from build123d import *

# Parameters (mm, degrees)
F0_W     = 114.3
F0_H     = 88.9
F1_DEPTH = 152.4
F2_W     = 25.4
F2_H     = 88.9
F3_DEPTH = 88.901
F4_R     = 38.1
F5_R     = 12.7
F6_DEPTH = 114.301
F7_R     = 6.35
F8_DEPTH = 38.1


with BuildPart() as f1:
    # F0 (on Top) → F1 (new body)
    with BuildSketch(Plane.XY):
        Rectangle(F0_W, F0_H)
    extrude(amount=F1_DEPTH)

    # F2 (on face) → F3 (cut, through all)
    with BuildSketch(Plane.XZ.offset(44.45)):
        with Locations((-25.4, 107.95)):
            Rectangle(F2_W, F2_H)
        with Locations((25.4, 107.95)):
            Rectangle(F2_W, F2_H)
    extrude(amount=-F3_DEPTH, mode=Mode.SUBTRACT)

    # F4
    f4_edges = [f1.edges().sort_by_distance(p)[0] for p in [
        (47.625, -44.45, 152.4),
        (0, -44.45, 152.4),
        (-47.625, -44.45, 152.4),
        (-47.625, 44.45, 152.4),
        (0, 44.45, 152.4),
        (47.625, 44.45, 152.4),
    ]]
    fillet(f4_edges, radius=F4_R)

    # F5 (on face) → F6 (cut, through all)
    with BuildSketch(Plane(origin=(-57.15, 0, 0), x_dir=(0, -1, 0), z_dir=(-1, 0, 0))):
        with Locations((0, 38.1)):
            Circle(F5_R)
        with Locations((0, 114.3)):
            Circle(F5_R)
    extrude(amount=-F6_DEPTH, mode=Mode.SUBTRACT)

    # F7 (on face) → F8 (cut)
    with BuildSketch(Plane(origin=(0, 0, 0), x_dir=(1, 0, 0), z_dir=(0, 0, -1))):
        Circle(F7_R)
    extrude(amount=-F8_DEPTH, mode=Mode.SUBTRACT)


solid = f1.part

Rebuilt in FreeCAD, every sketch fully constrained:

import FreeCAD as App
import Part
import Sketcher
from FreeCAD import Vector
Q = App.Units.Quantity


def edges_at(feature, points):
    """Names of the edges that pass closest to the given points."""
    edges = feature.Shape.Edges
    near = lambda p: min(range(len(edges)), key=lambda i: edges[i].distToShape(Part.Vertex(*p))[0])
    return sorted({f"Edge{near(p) + 1}" for p in points})


def add_polygon(sketch, points):
    """Adds a closed chain of lines whose ends are joined by coincident constraints."""
    first, n = sketch.GeometryCount, len(points)
    for a, b in zip(points, points[1:] + points[:1]):
        sketch.addGeometry(Part.LineSegment(App.Vector(*a, 0), App.Vector(*b, 0)), False)
    for i in range(n):
        sketch.addConstraint(Sketcher.Constraint("Coincident", first + i, 2, first + (i + 1) % n, 1))

doc = App.newDocument("Part")
body = doc.addObject("PartDesign::Body", "Body")

sketch1 = body.newObject("Sketcher::SketchObject", "Sketch")
sketch1.AttachmentSupport = (doc.getObject("XY_Plane"), [""])
sketch1.MapMode = "FlatFace"
add_polygon(sketch1, [(-57, 44), (-57, -44), (57, -44), (57, 44)])
sketch1.addConstraint([
    Sketcher.Constraint("Vertical", 0),
    Sketcher.Constraint("Horizontal", 1),
    Sketcher.Constraint("Vertical", 2),
    Sketcher.Constraint("Horizontal", 3),
    Sketcher.Constraint("Symmetric", 0, 2, 2, 2, -1, 1),
    Sketcher.Constraint("DistanceX", 1, 1, 1, 2, Q("4.5 in")),
    Sketcher.Constraint("DistanceY", 0, 2, 0, 1, Q("3.5 in")),
])
pad1 = body.newObject("PartDesign::Pad", "Pad")
pad1.Profile = sketch1
pad1.Length = Q("6 in")

sketch2 = body.newObject("Sketcher::SketchObject", "Sketch001")
sketch2.AttachmentSupport = (doc.getObject("XZ_Plane"), [""])
sketch2.MapMode = "FlatFace"
sketch2.AttachmentOffset = App.Placement(Vector(0, 0, 1.75 * 25.4), App.Rotation())
add_polygon(sketch2, [(-38, 152), (-38, 64), (-13, 64), (-13, 152)])
add_polygon(sketch2, [(13, 152), (13, 64), (38, 64), (38, 152)])
sketch2.addConstraint([
    Sketcher.Constraint("Vertical", 0),
    Sketcher.Constraint("Horizontal", 1),
    Sketcher.Constraint("Vertical", 2),
    Sketcher.Constraint("Horizontal", 3),
    Sketcher.Constraint("Vertical", 4),
    Sketcher.Constraint("Horizontal", 5),
    Sketcher.Constraint("Vertical", 6),
    Sketcher.Constraint("Horizontal", 7),
    Sketcher.Constraint("Symmetric", 1, 2, 4, 2, -2),
    Sketcher.Constraint("Symmetric", 3, 2, 6, 2, -2),
    Sketcher.Constraint("DistanceX", 1, 1, 1, 2, Q("1 in")),
    Sketcher.Constraint("DistanceY", 0, 2, 0, 1, Q("3.5 in")),
    Sketcher.Constraint("DistanceY", -1, 1, 2, 2, Q("6 in")),
    Sketcher.Constraint("DistanceX", 1, 2, 4, 2, Q("1 in")),
])
pocket1 = body.newObject("PartDesign::Pocket", "Pocket")
pocket1.Profile = sketch2
pocket1.Type = "ThroughAll"
doc.recompute()

fillet = body.newObject("PartDesign::Fillet", "Fillet")
fillet.Base = (pocket1, edges_at(pocket1, [
    (47.625, -44.45, 152.4),
    (0, -44.45, 152.4),
    (-47.625, -44.45, 152.4),
    (-47.625, 44.45, 152.4),
    (0, 44.45, 152.4),
    (47.625, 44.45, 152.4),
]))
fillet.Radius = Q("1.5 in")

sketch3 = body.newObject("Sketcher::SketchObject", "Sketch002")
sketch3.AttachmentSupport = (doc.getObject("YZ_Plane"), [""])
sketch3.MapMode = "FlatFace"
sketch3.AttachmentOffset = App.Placement(Vector(0, 0, -2.25 * 25.4), App.Rotation())
sketch3.addGeometry([
    Part.Circle(Vector(0, 38, 0), Vector(0, 0, 1), 13),
    Part.Circle(Vector(0, 114, 0), Vector(0, 0, 1), 13),
], False)
sketch3.addConstraint([
    Sketcher.Constraint("Equal", 0, 1),
    Sketcher.Constraint("PointOnObject", 0, 3, -2),
    Sketcher.Constraint("PointOnObject", 1, 3, -2),
    Sketcher.Constraint("Diameter", 0, Q("1 in")),
    Sketcher.Constraint("DistanceY", 0, 3, 1, 3, Q("3 in")),
    Sketcher.Constraint("DistanceY", -1, 1, 0, 3, Q("1.5 in")),
])
pocket2 = body.newObject("PartDesign::Pocket", "Pocket001")
pocket2.Profile = sketch3
pocket2.Type = "ThroughAll"
pocket2.Reversed = True

sketch4 = body.newObject("Sketcher::SketchObject", "Sketch003")
sketch4.AttachmentSupport = (doc.getObject("XY_Plane"), [""])
sketch4.MapMode = "FlatFace"
sketch4.addGeometry(Part.Circle(Vector(0, 0, 0), Vector(0, 0, 1), 6), False)
sketch4.addConstraint([
    Sketcher.Constraint("Coincident", 0, 3, -1, 1),
    Sketcher.Constraint("Diameter", 0, Q("0.5 in")),
])
pocket3 = body.newObject("PartDesign::Pocket", "Pocket002")
pocket3.Profile = sketch4
pocket3.Length = Q("1.5 in")
pocket3.Reversed = True

doc.recompute()
